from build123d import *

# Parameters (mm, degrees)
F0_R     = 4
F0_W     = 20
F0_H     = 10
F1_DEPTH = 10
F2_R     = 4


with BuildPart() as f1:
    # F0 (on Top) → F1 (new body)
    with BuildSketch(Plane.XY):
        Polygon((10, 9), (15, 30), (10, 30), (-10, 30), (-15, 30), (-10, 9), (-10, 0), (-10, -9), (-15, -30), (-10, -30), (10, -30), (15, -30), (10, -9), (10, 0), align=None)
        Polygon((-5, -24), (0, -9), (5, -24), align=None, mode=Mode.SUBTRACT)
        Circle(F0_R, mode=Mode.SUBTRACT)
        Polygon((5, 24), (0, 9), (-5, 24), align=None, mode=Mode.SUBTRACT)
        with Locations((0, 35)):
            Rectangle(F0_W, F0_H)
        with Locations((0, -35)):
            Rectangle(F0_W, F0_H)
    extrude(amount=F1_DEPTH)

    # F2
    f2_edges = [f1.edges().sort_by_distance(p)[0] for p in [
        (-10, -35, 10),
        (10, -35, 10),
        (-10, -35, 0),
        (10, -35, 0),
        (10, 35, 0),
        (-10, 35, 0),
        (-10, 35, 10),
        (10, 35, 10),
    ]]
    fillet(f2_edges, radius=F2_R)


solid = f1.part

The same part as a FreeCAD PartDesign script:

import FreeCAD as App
import Part
import Sketcher

V = App.Vector
Q = App.Units.Quantity


def edges_at(feature, points):
    """Names of the edges that pass closest to the given points."""
    edges = feature.Shape.Edges
    near = lambda p: min(range(len(edges)), key=lambda i: edges[i].distToShape(Part.Vertex(*p))[0])
    return sorted({f"Edge{near(p) + 1}" for p in points})


def add_polygon(sketch, points):
    """Adds a closed chain of lines whose ends are joined by coincident constraints."""
    first, n = sketch.GeometryCount, len(points)
    for a, b in zip(points, points[1:] + points[:1]):
        sketch.addGeometry(Part.LineSegment(App.Vector(*a, 0), App.Vector(*b, 0)), False)
    for i in range(n):
        sketch.addConstraint(Sketcher.Constraint("Coincident", first + i, 2, first + (i + 1) % n, 1))

doc = App.newDocument("Part")
params = doc.addObject("Spreadsheet::Sheet", "Params")
for row, (alias, value) in enumerate([
    ("sketch1_diameter", "8 mm"),
    ("sketch1_width", "5 mm"),
    ("sketch1_width2", "20 mm"),
    ("sketch1_width3", "10 mm"),
    ("sketch1_height", "18 mm"),
    ("pad1_length", "10 mm"),
    ("fillet_radius", "4 mm"),
], start=1):
    params.set(f"A{row}", alias)
    params.set(f"B{row}", "=" + value)
    params.setAlias(f"B{row}", alias)

body = doc.addObject("PartDesign::Body", "Body")

sketch1 = body.newObject("Sketcher::SketchObject", "Sketch")
sketch1.AttachmentSupport = (doc.getObject("XY_Plane"), [""])
sketch1.MapMode = "FlatFace"
add_polygon(sketch1, [(10, 9), (15, 30), (10, 30), (10, 40), (-10, 40), (-10, 30), (-15, 30), (-10, 9), (-10, -9), (-15, -30), (-10, -30), (-10, -40), (10, -40), (10, -30), (15, -30), (10, -9)])
add_polygon(sketch1, [(5, -24), (-5, -24), (0, -9)])
add_polygon(sketch1, [(-5, 24), (5, 24), (0, 9)])
sketch1.addGeometry(Part.Circle(V(0, 0, 0), V(0, 0, 1), 4), False)
sketch1.addConstraint(Sketcher.Constraint("Horizontal", 1))
sketch1.addConstraint(Sketcher.Constraint("Vertical", 2))
sketch1.addConstraint(Sketcher.Constraint("Horizontal", 3))
sketch1.addConstraint(Sketcher.Constraint("Vertical", 4))
sketch1.addConstraint(Sketcher.Constraint("Horizontal", 5))
sketch1.addConstraint(Sketcher.Constraint("Vertical", 7))
sketch1.addConstraint(Sketcher.Constraint("Horizontal", 9))
sketch1.addConstraint(Sketcher.Constraint("Vertical", 10))
sketch1.addConstraint(Sketcher.Constraint("Horizontal", 11))
sketch1.addConstraint(Sketcher.Constraint("Vertical", 12))
sketch1.addConstraint(Sketcher.Constraint("Horizontal", 13))
sketch1.addConstraint(Sketcher.Constraint("Vertical", 15))
sketch1.addConstraint(Sketcher.Constraint("Horizontal", 16))
sketch1.addConstraint(Sketcher.Constraint("Horizontal", 19))
sketch1.addConstraint(Sketcher.Constraint("Coincident", 22, 3, -1, 1))
sketch1.addConstraint(Sketcher.Constraint("Symmetric", 0, 2, 8, 2, -1, 1))
sketch1.addConstraint(Sketcher.Constraint("Symmetric", 2, 2, 10, 2, -1, 1))
sketch1.addConstraint(Sketcher.Constraint("Symmetric", 4, 2, 12, 2, -1, 1))
sketch1.addConstraint(Sketcher.Constraint("Symmetric", 6, 2, 14, 2, -1, 1))
sketch1.addConstraint(Sketcher.Constraint("Symmetric", 16, 2, 19, 2, -1, 1))
sketch1.addConstraint(Sketcher.Constraint("Symmetric", 17, 2, 20, 2, -1, 1))
sketch1.addConstraint(Sketcher.Constraint("Symmetric", 1, 2, 4, 2, -2))
sketch1.addConstraint(Sketcher.Constraint("PointOnObject", 17, 2, -2))
sketch1.addConstraint(Sketcher.Constraint("Parallel", 0, 8))
sketch1.addConstraint(Sketcher.Constraint("Parallel", 6, 14))
sketch1.addConstraint(Sketcher.Constraint("Parallel", 18, 21))
sketch1.addConstraint(Sketcher.Constraint("Horizontal", 7, 2, 14, 2))
sketch1.addConstraint(Sketcher.Constraint("Horizontal", 14, 2, 17, 2))
sketch1.addConstraint(Sketcher.Constraint("Vertical", 4, 2, 6, 2))
sketch1.addConstraint(Sketcher.Constraint("Vertical", 5, 2, 8, 2))
sketch1.addConstraint(Sketcher.Constraint("Vertical", 18, 2, 19, 2))
sketch1.addConstraint(Sketcher.Constraint("Equal", 19, 2))
sketch1.addConstraint(Sketcher.Constraint("Diameter", 22, Q("8 mm")))
sketch1.addConstraint(Sketcher.Constraint("DistanceX", 1, 2, 1, 1, Q("5 mm")))
sketch1.addConstraint(Sketcher.Constraint("DistanceX", 3, 2, 3, 1, Q("20 mm")))
sketch1.addConstraint(Sketcher.Constraint("DistanceX", 16, 2, 16, 1, Q("10 mm")))
sketch1.addConstraint(Sketcher.Constraint("DistanceY", 7, 2, 7, 1, Q("18 mm")))
sketch1.addConstraint(Sketcher.Constraint("DistanceY", -1, 1, 0, 2, Q("30 mm")))
sketch1.addConstraint(Sketcher.Constraint("DistanceY", 16, 2, -1, 1, Q("24 mm")))
sketch1.setExpression("Constraints[54]", "Params.sketch1_diameter")
sketch1.setExpression("Constraints[55]", "Params.sketch1_width")
sketch1.setExpression("Constraints[56]", "Params.sketch1_width2")
sketch1.setExpression("Constraints[57]", "Params.sketch1_width3")
sketch1.setExpression("Constraints[58]", "Params.sketch1_height")
pad1 = body.newObject("PartDesign::Pad", "Pad")
pad1.Profile = sketch1
pad1.setExpression("Length", "Params.pad1_length")
doc.recompute()

fillet = body.newObject("PartDesign::Fillet", "Fillet")
fillet.Base = (pad1, edges_at(pad1, [
    (-10, -35, 10),
    (10, -35, 10),
    (-10, -35, 0),
    (10, -35, 0),
    (10, 35, 0),
    (-10, 35, 0),
    (-10, 35, 10),
    (10, 35, 10),
]))
fillet.setExpression("Radius", "Params.fillet_radius")

doc.recompute()
